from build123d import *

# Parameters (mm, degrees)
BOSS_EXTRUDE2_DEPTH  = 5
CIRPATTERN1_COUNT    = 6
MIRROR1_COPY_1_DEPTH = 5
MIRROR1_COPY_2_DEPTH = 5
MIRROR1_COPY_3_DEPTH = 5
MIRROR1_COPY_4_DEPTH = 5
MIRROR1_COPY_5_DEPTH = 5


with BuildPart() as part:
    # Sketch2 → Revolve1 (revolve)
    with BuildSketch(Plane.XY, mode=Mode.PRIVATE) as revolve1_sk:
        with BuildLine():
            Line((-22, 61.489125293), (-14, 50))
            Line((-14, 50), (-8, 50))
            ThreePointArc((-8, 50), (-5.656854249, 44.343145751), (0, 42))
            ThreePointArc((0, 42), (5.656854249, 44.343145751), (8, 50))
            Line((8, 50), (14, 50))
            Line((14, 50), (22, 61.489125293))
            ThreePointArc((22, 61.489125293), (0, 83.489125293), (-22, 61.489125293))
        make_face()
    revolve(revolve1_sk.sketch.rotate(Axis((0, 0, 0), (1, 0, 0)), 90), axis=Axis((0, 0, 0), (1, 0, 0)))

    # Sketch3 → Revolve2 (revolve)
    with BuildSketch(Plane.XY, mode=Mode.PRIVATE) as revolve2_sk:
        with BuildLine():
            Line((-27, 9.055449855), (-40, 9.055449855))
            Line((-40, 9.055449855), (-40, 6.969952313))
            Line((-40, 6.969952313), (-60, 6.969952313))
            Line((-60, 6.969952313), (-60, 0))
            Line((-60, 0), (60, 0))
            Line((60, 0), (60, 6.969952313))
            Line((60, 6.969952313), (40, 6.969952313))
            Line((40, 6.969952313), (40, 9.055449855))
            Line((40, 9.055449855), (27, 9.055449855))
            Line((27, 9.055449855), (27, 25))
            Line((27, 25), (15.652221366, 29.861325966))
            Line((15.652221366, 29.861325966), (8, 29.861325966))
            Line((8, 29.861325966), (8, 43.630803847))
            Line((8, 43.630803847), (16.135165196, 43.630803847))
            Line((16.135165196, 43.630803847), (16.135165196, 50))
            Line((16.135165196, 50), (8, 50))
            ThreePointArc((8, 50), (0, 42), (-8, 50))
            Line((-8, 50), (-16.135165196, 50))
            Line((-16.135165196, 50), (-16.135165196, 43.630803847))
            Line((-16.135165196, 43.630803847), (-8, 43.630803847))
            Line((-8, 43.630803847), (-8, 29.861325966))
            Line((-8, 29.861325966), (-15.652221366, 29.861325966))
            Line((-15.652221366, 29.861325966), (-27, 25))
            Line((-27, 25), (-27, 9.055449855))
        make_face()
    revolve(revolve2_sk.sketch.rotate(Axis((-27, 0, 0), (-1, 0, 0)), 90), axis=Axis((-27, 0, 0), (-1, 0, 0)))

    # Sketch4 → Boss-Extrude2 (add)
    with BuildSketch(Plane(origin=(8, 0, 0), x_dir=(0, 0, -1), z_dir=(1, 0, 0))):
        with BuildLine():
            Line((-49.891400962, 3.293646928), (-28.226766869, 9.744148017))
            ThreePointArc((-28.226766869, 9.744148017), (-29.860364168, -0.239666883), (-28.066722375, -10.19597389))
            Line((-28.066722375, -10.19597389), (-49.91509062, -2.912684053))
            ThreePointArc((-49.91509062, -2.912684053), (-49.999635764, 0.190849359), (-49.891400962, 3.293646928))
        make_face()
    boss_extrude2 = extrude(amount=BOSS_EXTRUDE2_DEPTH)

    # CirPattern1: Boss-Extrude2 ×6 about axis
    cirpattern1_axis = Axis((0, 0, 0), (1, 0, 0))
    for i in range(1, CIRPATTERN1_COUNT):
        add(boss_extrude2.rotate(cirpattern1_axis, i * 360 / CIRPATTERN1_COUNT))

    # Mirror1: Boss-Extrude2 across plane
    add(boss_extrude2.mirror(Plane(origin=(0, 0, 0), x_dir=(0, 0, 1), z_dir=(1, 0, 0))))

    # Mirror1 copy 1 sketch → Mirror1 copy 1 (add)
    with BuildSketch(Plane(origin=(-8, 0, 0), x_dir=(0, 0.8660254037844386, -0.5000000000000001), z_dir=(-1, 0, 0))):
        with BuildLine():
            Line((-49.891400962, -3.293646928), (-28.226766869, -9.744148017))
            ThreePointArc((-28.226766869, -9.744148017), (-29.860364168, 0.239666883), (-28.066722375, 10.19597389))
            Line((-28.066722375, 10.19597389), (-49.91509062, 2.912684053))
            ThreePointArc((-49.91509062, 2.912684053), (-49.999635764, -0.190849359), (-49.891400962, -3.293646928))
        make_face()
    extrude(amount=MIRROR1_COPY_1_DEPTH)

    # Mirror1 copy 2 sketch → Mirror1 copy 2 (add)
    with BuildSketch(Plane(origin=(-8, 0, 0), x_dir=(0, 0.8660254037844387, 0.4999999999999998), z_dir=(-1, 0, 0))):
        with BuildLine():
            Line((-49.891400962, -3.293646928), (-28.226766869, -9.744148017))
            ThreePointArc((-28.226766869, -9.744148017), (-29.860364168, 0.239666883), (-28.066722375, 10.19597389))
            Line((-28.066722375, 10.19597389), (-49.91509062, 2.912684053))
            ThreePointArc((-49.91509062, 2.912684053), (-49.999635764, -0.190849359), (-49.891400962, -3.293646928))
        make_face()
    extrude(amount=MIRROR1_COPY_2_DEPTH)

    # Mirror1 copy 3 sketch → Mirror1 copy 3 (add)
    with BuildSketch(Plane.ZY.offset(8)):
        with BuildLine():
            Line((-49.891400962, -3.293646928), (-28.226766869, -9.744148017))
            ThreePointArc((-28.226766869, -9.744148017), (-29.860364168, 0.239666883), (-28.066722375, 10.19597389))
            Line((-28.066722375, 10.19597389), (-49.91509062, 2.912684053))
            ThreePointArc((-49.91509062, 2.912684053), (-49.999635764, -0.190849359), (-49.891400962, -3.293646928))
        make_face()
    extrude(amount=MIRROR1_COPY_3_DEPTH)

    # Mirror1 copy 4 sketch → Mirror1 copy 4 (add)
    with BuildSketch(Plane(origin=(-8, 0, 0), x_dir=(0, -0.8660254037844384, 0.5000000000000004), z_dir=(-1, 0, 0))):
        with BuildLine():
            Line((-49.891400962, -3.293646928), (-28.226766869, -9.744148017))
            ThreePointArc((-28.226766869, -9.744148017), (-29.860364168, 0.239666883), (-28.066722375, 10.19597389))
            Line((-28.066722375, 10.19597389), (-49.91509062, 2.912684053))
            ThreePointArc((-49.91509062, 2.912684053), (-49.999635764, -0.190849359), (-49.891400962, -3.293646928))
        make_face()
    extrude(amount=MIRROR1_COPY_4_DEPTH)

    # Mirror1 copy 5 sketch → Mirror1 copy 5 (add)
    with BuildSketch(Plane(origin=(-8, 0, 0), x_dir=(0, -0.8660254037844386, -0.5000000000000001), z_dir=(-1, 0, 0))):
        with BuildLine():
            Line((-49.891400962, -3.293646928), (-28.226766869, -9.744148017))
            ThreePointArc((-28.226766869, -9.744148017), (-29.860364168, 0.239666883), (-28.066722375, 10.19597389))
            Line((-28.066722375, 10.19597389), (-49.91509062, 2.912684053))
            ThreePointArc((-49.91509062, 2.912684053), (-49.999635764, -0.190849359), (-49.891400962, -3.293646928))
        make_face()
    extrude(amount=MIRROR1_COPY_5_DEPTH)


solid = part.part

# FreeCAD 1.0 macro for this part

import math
import FreeCAD as App
import Part
import Sketcher
Q = App.Units.Quantity

doc = App.newDocument("Part")
body = doc.addObject("PartDesign::Body", "Body")

sketch1 = doc.addObject("Sketcher::SketchObject", "Sketch")
body.addObject(sketch1)
sketch1.AttachmentSupport = (doc.XY_Plane, [""])
sketch1.MapMode = "FlatFace"
sketch1.addGeometry([
    Part.LineSegment(App.Vector(-22, 61, 0), App.Vector(-14, 50, 0)),
    Part.LineSegment(App.Vector(-14, 50, 0), App.Vector(-8, 50, 0)),
    Part.ArcOfCircle(Part.Circle(App.Vector(0, 50, 0), App.Vector(0, 0, 1), 8), math.radians(-180), math.radians(-90)),
    Part.ArcOfCircle(Part.Circle(App.Vector(0, 50, 0), App.Vector(0, 0, 1), 8), math.radians(-90), math.radians(0)),
    Part.LineSegment(App.Vector(8, 50, 0), App.Vector(14, 50, 0)),
    Part.LineSegment(App.Vector(14, 50, 0), App.Vector(22, 61, 0)),
    Part.ArcOfCircle(Part.Circle(App.Vector(0, 61, 0), App.Vector(0, 0, 1), 22), math.radians(0), math.radians(180)),
], False)
sketch1.addConstraint([
    Sketcher.Constraint("Coincident", 0, 2, 1, 1),
    Sketcher.Constraint("Coincident", 1, 2, 2, 1),
    Sketcher.Constraint("Tangent", 2, 2, 3, 1),
    Sketcher.Constraint("Coincident", 3, 2, 4, 1),
    Sketcher.Constraint("Coincident", 4, 2, 5, 1),
    Sketcher.Constraint("Coincident", 5, 2, 6, 1),
    Sketcher.Constraint("Coincident", 6, 2, 0, 1),
    Sketcher.Constraint("Horizontal", 1),
    Sketcher.Constraint("Horizontal", 4),
    Sketcher.Constraint("Equal", 2, 3),
    Sketcher.Constraint("Symmetric", 1, 2, 3, 2, -2),
    Sketcher.Constraint("Symmetric", 5, 2, 6, 2, -2),
    Sketcher.Constraint("PointOnObject", 2, 2, -2),
    Sketcher.Constraint("Horizontal", 3, 3, 0, 2),
    Sketcher.Constraint("Horizontal", 6, 3, 5, 2),
    Sketcher.Constraint("Equal", 1, 4),
    Sketcher.Constraint("Radius", 2, Q("8 mm")),
    Sketcher.Constraint("Radius", 6, Q("22 mm")),
    Sketcher.Constraint("DistanceX", 1, 1, 1, 2, Q("6 mm")),
    Sketcher.Constraint("Distance", 0, Q("14 mm")),
    Sketcher.Constraint("DistanceY", -1, 1, 2, 3, Q("50 mm")),
])
revolution = doc.addObject("PartDesign::Revolution", "Revolution")
body.addObject(revolution)
revolution.Profile = sketch1
revolution.ReferenceAxis = (sketch1, ["H_Axis"])
revolution.Angle = 360

sketch2 = doc.addObject("Sketcher::SketchObject", "Sketch001")
body.addObject(sketch2)
sketch2.AttachmentSupport = (doc.XY_Plane, [""])
sketch2.MapMode = "FlatFace"
sketch2.addGeometry([
    Part.LineSegment(App.Vector(-27, 9.1, 0), App.Vector(-40, 9.1, 0)),
    Part.LineSegment(App.Vector(-40, 9.1, 0), App.Vector(-40, 7, 0)),
    Part.LineSegment(App.Vector(-40, 7, 0), App.Vector(-60, 7, 0)),
    Part.LineSegment(App.Vector(-60, 7, 0), App.Vector(-60, 0, 0)),
    Part.LineSegment(App.Vector(-60, 0, 0), App.Vector(60, 0, 0)),
    Part.LineSegment(App.Vector(60, 0, 0), App.Vector(60, 7, 0)),
    Part.LineSegment(App.Vector(60, 7, 0), App.Vector(40, 7, 0)),
    Part.LineSegment(App.Vector(40, 7, 0), App.Vector(40, 9.1, 0)),
    Part.LineSegment(App.Vector(40, 9.1, 0), App.Vector(27, 9.1, 0)),
    Part.LineSegment(App.Vector(27, 9.1, 0), App.Vector(27, 25, 0)),
    Part.LineSegment(App.Vector(27, 25, 0), App.Vector(15.7, 29.9, 0)),
    Part.LineSegment(App.Vector(15.7, 29.9, 0), App.Vector(8, 29.9, 0)),
    Part.LineSegment(App.Vector(8, 29.9, 0), App.Vector(8, 43.6, 0)),
    Part.LineSegment(App.Vector(8, 43.6, 0), App.Vector(16.1, 43.6, 0)),
    Part.LineSegment(App.Vector(16.1, 43.6, 0), App.Vector(16.1, 50, 0)),
    Part.LineSegment(App.Vector(16.1, 50, 0), App.Vector(8, 50, 0)),
    Part.ArcOfCircle(Part.Circle(App.Vector(0, 50, 0), App.Vector(0, 0, 1), 8), math.radians(180), math.radians(360)),
    Part.LineSegment(App.Vector(-8, 50, 0), App.Vector(-16.1, 50, 0)),
    Part.LineSegment(App.Vector(-16.1, 50, 0), App.Vector(-16.1, 43.6, 0)),
    Part.LineSegment(App.Vector(-16.1, 43.6, 0), App.Vector(-8, 43.6, 0)),
    Part.LineSegment(App.Vector(-8, 43.6, 0), App.Vector(-8, 29.9, 0)),
    Part.LineSegment(App.Vector(-8, 29.9, 0), App.Vector(-15.7, 29.9, 0)),
    Part.LineSegment(App.Vector(-15.7, 29.9, 0), App.Vector(-27, 25, 0)),
    Part.LineSegment(App.Vector(-27, 25, 0), App.Vector(-27, 9.1, 0)),
], False)
sketch2.addConstraint([
    Sketcher.Constraint("Coincident", 0, 2, 1, 1),
    Sketcher.Constraint("Coincident", 1, 2, 2, 1),
    Sketcher.Constraint("Coincident", 2, 2, 3, 1),
    Sketcher.Constraint("Coincident", 3, 2, 4, 1),
    Sketcher.Constraint("Coincident", 4, 2, 5, 1),
    Sketcher.Constraint("Coincident", 5, 2, 6, 1),
    Sketcher.Constraint("Coincident", 6, 2, 7, 1),
    Sketcher.Constraint("Coincident", 7, 2, 8, 1),
    Sketcher.Constraint("Coincident", 8, 2, 9, 1),
    Sketcher.Constraint("Coincident", 9, 2, 10, 1),
    Sketcher.Constraint("Coincident", 10, 2, 11, 1),
    Sketcher.Constraint("Coincident", 11, 2, 12, 1),
    Sketcher.Constraint("Coincident", 12, 2, 13, 1),
    Sketcher.Constraint("Coincident", 13, 2, 14, 1),
    Sketcher.Constraint("Coincident", 14, 2, 15, 1),
    Sketcher.Constraint("Coincident", 15, 2, 16, 2),
    Sketcher.Constraint("Coincident", 16, 1, 17, 1),
    Sketcher.Constraint("Coincident", 17, 2, 18, 1),
    Sketcher.Constraint("Coincident", 18, 2, 19, 1),
    Sketcher.Constraint("Coincident", 19, 2, 20, 1),
    Sketcher.Constraint("Coincident", 20, 2, 21, 1),
    Sketcher.Constraint("Coincident", 21, 2, 22, 1),
    Sketcher.Constraint("Coincident", 22, 2, 23, 1),
    Sketcher.Constraint("Coincident", 23, 2, 0, 1),
    Sketcher.Constraint("Horizontal", 0),
    Sketcher.Constraint("Vertical", 1),
    Sketcher.Constraint("Horizontal", 2),
    Sketcher.Constraint("Vertical", 3),
    Sketcher.Constraint("Horizontal", 4),
    Sketcher.Constraint("Vertical", 5),
    Sketcher.Constraint("Horizontal", 6),
    Sketcher.Constraint("Vertical", 7),
    Sketcher.Constraint("Horizontal", 8),
    Sketcher.Constraint("Vertical", 9),
    Sketcher.Constraint("Horizontal", 11),
    Sketcher.Constraint("Vertical", 12),
    Sketcher.Constraint("Horizontal", 13),
    Sketcher.Constraint("Vertical", 14),
    Sketcher.Constraint("Horizontal", 15),
    Sketcher.Constraint("Horizontal", 17),
    Sketcher.Constraint("Vertical", 18),
    Sketcher.Constraint("Horizontal", 19),
    Sketcher.Constraint("Vertical", 20),
    Sketcher.Constraint("Horizontal", 21),
    Sketcher.Constraint("Vertical", 23),
    Sketcher.Constraint("Symmetric", 3, 2, 4, 2, -1, 1),
    Sketcher.Constraint("Symmetric", 1, 2, 6, 2, -2),
    Sketcher.Constraint("Symmetric", 15, 2, 16, 1, -2),
    Sketcher.Constraint("Symmetric", 13, 2, 18, 2, -2),
    Sketcher.Constraint("Symmetric", 11, 2, 20, 2, -2),
    Sketcher.Constraint("Symmetric", 9, 2, 22, 2, -2),
    Sketcher.Constraint("Horizontal", 0, 2, 7, 2),
    Sketcher.Constraint("Horizontal", 16, 3, 14, 2),
    Sketcher.Constraint("Vertical", 12, 2, 15, 2),
    Sketcher.Constraint("Equal", 11, 21),
    Sketcher.Constraint("Radius", 16, Q("8 mm")),
    Sketcher.Constraint("DistanceX", 0, 2, 0, 1, Q("13 mm")),
    Sketcher.Constraint("DistanceX", 2, 2, 2, 1, Q("20 mm")),
    Sketcher.Constraint("DistanceX", 4, 1, 4, 2, Q("120 mm")),
    Sketcher.Constraint("DistanceY", -1, 1, 16, 3, Q("50 mm")),
    Sketcher.Constraint("DistanceY", -1, 1, 9, 2, Q("25 mm")),
    Sketcher.Constraint("DistanceX", 11, 2, 11, 1, Q("7.652221 mm")),
    Sketcher.Constraint("DistanceY", 9, 1, 9, 2, Q("15.94455 mm")),
    Sketcher.Constraint("DistanceX", 13, 1, 13, 2, Q("8.135165 mm")),
    Sketcher.Constraint("DistanceY", 1, 2, 1, 1, Q("2.085498 mm")),
    Sketcher.Constraint("DistanceY", 12, 1, 12, 2, Q("13.769478 mm")),
    Sketcher.Constraint("DistanceY", 14, 1, 14, 2, Q("6.369196 mm")),
])
revolution2 = doc.addObject("PartDesign::Revolution", "Revolution001")
body.addObject(revolution2)
revolution2.Profile = sketch2
revolution2.ReferenceAxis = (sketch2, ["H_Axis"])
revolution2.Angle = 360

sketch3 = doc.addObject("Sketcher::SketchObject", "Sketch002")
body.addObject(sketch3)
sketch3.AttachmentSupport = (doc.YZ_Plane, [""])
sketch3.MapMode = "FlatFace"
sketch3.AttachmentOffset = App.Placement(App.Vector(0, 0, 8), App.Rotation())
sketch3.addGeometry([
    Part.LineSegment(App.Vector(10, 28, 0), App.Vector(3, 50, 0)),
    Part.ArcOfCircle(Part.Circle(App.Vector(0, 0, 0), App.Vector(0, 0, 1), 50), math.radians(86.22), math.radians(93.34)),
    Part.LineSegment(App.Vector(-3, 50, 0), App.Vector(-10, 28, 0)),
    Part.ArcOfCircle(Part.Circle(App.Vector(0, 0, 0), App.Vector(0, 0, 1), 30), math.radians(71), math.radians(110)),
], False)
sketch3.addConstraint([
    Sketcher.Constraint("Coincident", 0, 2, 1, 1),
    Sketcher.Constraint("Coincident", 1, 2, 2, 1),
    Sketcher.Constraint("Coincident", 2, 2, 3, 2),
    Sketcher.Constraint("Coincident", 3, 1, 0, 1),
    Sketcher.Constraint("Coincident", 1, 3, -1, 1),
    Sketcher.Constraint("Coincident", 3, 3, -1, 1),
    Sketcher.Constraint("Radius", 1, Q("50 mm")),
    Sketcher.Constraint("Radius", 3, Q("29.861326 mm")),
    Sketcher.Constraint("DistanceY", -1, 1, 0, 2, Q("49.891401 mm")),
    Sketcher.Constraint("DistanceX", 0, 2, 3, 1, Q("6.450501 mm")),
    Sketcher.Constraint("Distance", 2, Q("23.030361 mm")),
    Sketcher.Constraint("DistanceY", -1, 1, 1, 2, Q("49.915091 mm")),
])
pad1 = doc.addObject("PartDesign::Pad", "Pad")
body.addObject(pad1)
pad1.Profile = sketch3
pad1.Length = 5
doc.recompute()

polarpattern = doc.addObject("PartDesign::PolarPattern", "PolarPattern")
body.addObject(polarpattern)
polarpattern.Originals = [pad1]
polarpattern.Axis = (doc.X_Axis, [""])
polarpattern.Angle = 360
polarpattern.Occurrences = 6
body.Tip = polarpattern
doc.recompute()

mirrored = doc.addObject("PartDesign::Mirrored", "Mirrored")
body.addObject(mirrored)
mirrored.Originals = [pad1]
mirrored.MirrorPlane = (doc.YZ_Plane, [""])
body.Tip = mirrored

sketch4 = doc.addObject("Sketcher::SketchObject", "Sketch003")
body.addObject(sketch4)
sketch4.AttachmentSupport = (doc.YZ_Plane, [""])
sketch4.MapMode = "FlatFace"
sketch4.AttachmentOffset = App.Placement(App.Vector(0, 0, -8), App.Rotation())
sketch4.addGeometry([
    Part.LineSegment(App.Vector(-42, 28, 0), App.Vector(-20, 23, 0)),
    Part.ArcOfCircle(Part.Circle(App.Vector(0, 0, 0), App.Vector(0, 0, 1), 30), math.radians(131), math.radians(170)),
    Part.LineSegment(App.Vector(-29, 5, 0), App.Vector(-45, 22, 0)),
    Part.ArcOfCircle(Part.Circle(App.Vector(0, 0, 0), App.Vector(0, 0, 1), 50), math.radians(146.22), math.radians(153.34)),
], False)
sketch4.addConstraint([
    Sketcher.Constraint("Coincident", 0, 2, 1, 1),
    Sketcher.Constraint("Coincident", 1, 2, 2, 1),
    Sketcher.Constraint("Coincident", 2, 2, 3, 2),
    Sketcher.Constraint("Coincident", 3, 1, 0, 1),
    Sketcher.Constraint("Coincident", 1, 3, -1, 1),
    Sketcher.Constraint("Coincident", 3, 3, -1, 1),
    Sketcher.Constraint("Radius", 3, Q("50 mm")),
    Sketcher.Constraint("Radius", 1, Q("29.861326 mm")),
    Sketcher.Constraint("DistanceY", 1, 2, 2, 2, Q("17.231698 mm")),
    Sketcher.Constraint("Distance", 2, Q("23.030361 mm")),
    Sketcher.Constraint("DistanceX", 1, 2, 0, 2, Q("9.831458 mm")),
    Sketcher.Constraint("DistanceX", 2, 2, 3, 1, Q("3.123681 mm")),
])
pad2 = doc.addObject("PartDesign::Pad", "Pad001")
body.addObject(pad2)
pad2.Profile = sketch4
pad2.Length = 5
pad2.Reversed = True

sketch5 = doc.addObject("Sketcher::SketchObject", "Sketch004")
body.addObject(sketch5)
sketch5.AttachmentSupport = (doc.YZ_Plane, [""])
sketch5.MapMode = "FlatFace"
sketch5.AttachmentOffset = App.Placement(App.Vector(0, 0, -8), App.Rotation())
sketch5.addGeometry([
    Part.LineSegment(App.Vector(-45, -22, 0), App.Vector(-29, -6, 0)),
    Part.ArcOfCircle(Part.Circle(App.Vector(0, 0, 0), App.Vector(0, 0, 1), 30), math.radians(-169), math.radians(-130)),
    Part.LineSegment(App.Vector(-19, -23, 0), App.Vector(-42, -27, 0)),
    Part.ArcOfCircle(Part.Circle(App.Vector(0, 0, 0), App.Vector(0, 0, 1), 50), math.radians(-153.78), math.radians(-146.66)),
], False)
sketch5.addConstraint([
    Sketcher.Constraint("Coincident", 0, 2, 1, 1),
    Sketcher.Constraint("Coincident", 1, 2, 2, 1),
    Sketcher.Constraint("Coincident", 2, 2, 3, 2),
    Sketcher.Constraint("Coincident", 3, 1, 0, 1),
    Sketcher.Constraint("Coincident", 1, 3, -1, 1),
    Sketcher.Constraint("Coincident", 3, 3, -1, 1),
    Sketcher.Constraint("Radius", 3, Q("50 mm")),
    Sketcher.Constraint("Radius", 1, Q("29.861326 mm")),
    Sketcher.Constraint("DistanceY", 2, 2, 0, 2, Q("21.8053 mm")),
    Sketcher.Constraint("Distance", 2, Q("23.030361 mm")),
    Sketcher.Constraint("DistanceX", 0, 2, -1, 1, Q("29.317171 mm")),
    Sketcher.Constraint("DistanceY", 3, 1, -1, 1, Q("22.093319 mm")),
])
pad3 = doc.addObject("PartDesign::Pad", "Pad002")
body.addObject(pad3)
pad3.Profile = sketch5
pad3.Length = 5
pad3.Reversed = True

sketch6 = doc.addObject("Sketcher::SketchObject", "Sketch005")
body.addObject(sketch6)
sketch6.AttachmentSupport = (doc.YZ_Plane, [""])
sketch6.MapMode = "FlatFace"
sketch6.AttachmentOffset = App.Placement(App.Vector(0, 0, -8), App.Rotation())
sketch6.addGeometry([
    Part.LineSegment(App.Vector(-3, -50, 0), App.Vector(-10, -28, 0)),
    Part.ArcOfCircle(Part.Circle(App.Vector(0, 0, 0), App.Vector(0, 0, 1), 30), math.radians(-109), math.radians(-70)),
    Part.LineSegment(App.Vector(10, -28, 0), App.Vector(3, -50, 0)),
    Part.ArcOfCircle(Part.Circle(App.Vector(0, 0, 0), App.Vector(0, 0, 1), 50), math.radians(-93.78), math.radians(-86.66)),
], False)
sketch6.addConstraint([
    Sketcher.Constraint("Coincident", 0, 2, 1, 1),
    Sketcher.Constraint("Coincident", 1, 2, 2, 1),
    Sketcher.Constraint("Coincident", 2, 2, 3, 2),
    Sketcher.Constraint("Coincident", 3, 1, 0, 1),
    Sketcher.Constraint("Coincident", 1, 3, -1, 1),
    Sketcher.Constraint("Coincident", 3, 3, -1, 1),
    Sketcher.Constraint("Radius", 3, Q("50 mm")),
    Sketcher.Constraint("Radius", 1, Q("29.861326 mm")),
    Sketcher.Constraint("DistanceY", 3, 1, -1, 1, Q("49.891401 mm")),
    Sketcher.Constraint("DistanceX", 0, 2, 3, 1, Q("6.450501 mm")),
    Sketcher.Constraint("Distance", 2, Q("23.030361 mm")),
    Sketcher.Constraint("DistanceY", 2, 2, -1, 1, Q("49.915091 mm")),
])
pad4 = doc.addObject("PartDesign::Pad", "Pad003")
body.addObject(pad4)
pad4.Profile = sketch6
pad4.Length = 5
pad4.Reversed = True

sketch7 = doc.addObject("Sketcher::SketchObject", "Sketch006")
body.addObject(sketch7)
sketch7.AttachmentSupport = (doc.YZ_Plane, [""])
sketch7.MapMode = "FlatFace"
sketch7.AttachmentOffset = App.Placement(App.Vector(0, 0, -8), App.Rotation())
sketch7.addGeometry([
    Part.LineSegment(App.Vector(42, -28, 0), App.Vector(20, -23, 0)),
    Part.ArcOfCircle(Part.Circle(App.Vector(0, 0, 0), App.Vector(0, 0, 1), 30), math.radians(-49), math.radians(-10)),
    Part.LineSegment(App.Vector(29, -5, 0), App.Vector(45, -22, 0)),
    Part.ArcOfCircle(Part.Circle(App.Vector(0, 0, 0), App.Vector(0, 0, 1), 50), math.radians(-33.78), math.radians(-26.66)),
], False)
sketch7.addConstraint([
    Sketcher.Constraint("Coincident", 0, 2, 1, 1),
    Sketcher.Constraint("Coincident", 1, 2, 2, 1),
    Sketcher.Constraint("Coincident", 2, 2, 3, 2),
    Sketcher.Constraint("Coincident", 3, 1, 0, 1),
    Sketcher.Constraint("Coincident", 1, 3, -1, 1),
    Sketcher.Constraint("Coincident", 3, 3, -1, 1),
    Sketcher.Constraint("Radius", 3, Q("50 mm")),
    Sketcher.Constraint("Radius", 1, Q("29.861326 mm")),
    Sketcher.Constraint("DistanceY", 2, 2, 1, 2, Q("17.231698 mm")),
    Sketcher.Constraint("Distance", 2, Q("23.030361 mm")),
    Sketcher.Constraint("DistanceX", 0, 2, 1, 2, Q("9.831458 mm")),
    Sketcher.Constraint("DistanceX", 3, 1, 2, 2, Q("3.123681 mm")),
])
pad5 = doc.addObject("PartDesign::Pad", "Pad004")
body.addObject(pad5)
pad5.Profile = sketch7
pad5.Length = 5
pad5.Reversed = True

sketch8 = doc.addObject("Sketcher::SketchObject", "Sketch007")
body.addObject(sketch8)
sketch8.AttachmentSupport = (doc.YZ_Plane, [""])
sketch8.MapMode = "FlatFace"
sketch8.AttachmentOffset = App.Placement(App.Vector(0, 0, -8), App.Rotation())
sketch8.addGeometry([
    Part.LineSegment(App.Vector(45, 22, 0), App.Vector(29, 6, 0)),
    Part.ArcOfCircle(Part.Circle(App.Vector(0, 0, 0), App.Vector(0, 0, 1), 30), math.radians(11), math.radians(50)),
    Part.LineSegment(App.Vector(19, 23, 0), App.Vector(42, 27, 0)),
    Part.ArcOfCircle(Part.Circle(App.Vector(0, 0, 0), App.Vector(0, 0, 1), 50), math.radians(26.22), math.radians(33.34)),
], False)
sketch8.addConstraint([
    Sketcher.Constraint("Coincident", 0, 2, 1, 1),
    Sketcher.Constraint("Coincident", 1, 2, 2, 1),
    Sketcher.Constraint("Coincident", 2, 2, 3, 2),
    Sketcher.Constraint("Coincident", 3, 1, 0, 1),
    Sketcher.Constraint("Coincident", 1, 3, -1, 1),
    Sketcher.Constraint("Coincident", 3, 3, -1, 1),
    Sketcher.Constraint("Radius", 3, Q("50 mm")),
    Sketcher.Constraint("Radius", 1, Q("29.861326 mm")),
    Sketcher.Constraint("DistanceY", 0, 2, 2, 2, Q("21.8053 mm")),
    Sketcher.Constraint("Distance", 2, Q("23.030361 mm")),
    Sketcher.Constraint("DistanceX", -1, 1, 0, 2, Q("29.317171 mm")),
    Sketcher.Constraint("DistanceY", -1, 1, 3, 1, Q("22.093319 mm")),
])
pad6 = doc.addObject("PartDesign::Pad", "Pad005")
body.addObject(pad6)
pad6.Profile = sketch8
pad6.Length = 5
pad6.Reversed = True

doc.recompute()
